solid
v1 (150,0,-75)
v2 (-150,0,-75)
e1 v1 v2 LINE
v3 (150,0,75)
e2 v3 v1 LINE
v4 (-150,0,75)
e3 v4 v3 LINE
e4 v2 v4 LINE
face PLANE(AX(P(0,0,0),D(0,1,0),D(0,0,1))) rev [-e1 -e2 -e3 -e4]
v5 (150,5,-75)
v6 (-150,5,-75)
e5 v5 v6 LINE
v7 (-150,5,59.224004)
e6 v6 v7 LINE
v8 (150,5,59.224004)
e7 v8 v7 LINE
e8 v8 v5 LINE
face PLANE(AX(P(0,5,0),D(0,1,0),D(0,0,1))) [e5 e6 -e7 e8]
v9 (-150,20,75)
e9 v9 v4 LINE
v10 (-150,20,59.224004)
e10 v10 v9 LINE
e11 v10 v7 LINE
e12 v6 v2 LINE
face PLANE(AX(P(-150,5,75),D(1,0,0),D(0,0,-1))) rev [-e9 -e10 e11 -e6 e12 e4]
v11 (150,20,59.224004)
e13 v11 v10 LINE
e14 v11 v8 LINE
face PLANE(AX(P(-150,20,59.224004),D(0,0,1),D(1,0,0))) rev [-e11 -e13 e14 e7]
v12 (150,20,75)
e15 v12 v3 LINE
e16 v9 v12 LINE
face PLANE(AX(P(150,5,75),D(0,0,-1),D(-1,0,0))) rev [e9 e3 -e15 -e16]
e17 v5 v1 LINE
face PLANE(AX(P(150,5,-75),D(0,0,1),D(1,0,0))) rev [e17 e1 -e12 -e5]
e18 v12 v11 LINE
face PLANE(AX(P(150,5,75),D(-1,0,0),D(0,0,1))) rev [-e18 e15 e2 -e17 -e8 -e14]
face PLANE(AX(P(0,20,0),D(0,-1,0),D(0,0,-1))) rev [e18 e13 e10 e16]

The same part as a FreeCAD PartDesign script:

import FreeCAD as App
import Part
import Sketcher
from FreeCAD import Vector
Q = App.Units.Quantity


def add_polygon(sketch, points):
    """Adds a closed chain of lines whose ends are joined by coincident constraints."""
    first, n = sketch.GeometryCount, len(points)
    for a, b in zip(points, points[1:] + points[:1]):
        sketch.addGeometry(Part.LineSegment(App.Vector(*a, 0), App.Vector(*b, 0)), False)
    for i in range(n):
        sketch.addConstraint(Sketcher.Constraint("Coincident", first + i, 2, first + (i + 1) % n, 1))

doc = App.newDocument("Part")
body = doc.addObject("PartDesign::Body", "Body")

# Sketch on XZ plane
sketch1 = body.newObject("Sketcher::SketchObject", "Sketch")
sketch1.AttachmentSupport = (doc.getObject("XZ_Plane"), [""])
sketch1.MapMode = "FlatFace"
add_polygon(sketch1, [(-150, -75), (-150, 75), (150, 75), (150, -75)])  # lines 0-3
sketch1.addConstraint(Sketcher.Constraint("Vertical", 0))
sketch1.addConstraint(Sketcher.Constraint("Horizontal", 1))
sketch1.addConstraint(Sketcher.Constraint("Vertical", 2))
sketch1.addConstraint(Sketcher.Constraint("Horizontal", 3))
sketch1.addConstraint(Sketcher.Constraint("Symmetric", 0, 2, 2, 2, -1, 1))
sketch1.addConstraint(Sketcher.Constraint("DistanceX", 1, 1, 1, 2, Q("300 mm")))
sketch1.addConstraint(Sketcher.Constraint("DistanceY", 0, 1, 0, 2, Q("150 mm")))
pad1 = body.newObject("PartDesign::Pad", "Pad")
pad1.Profile = sketch1
pad1.Length = 5
pad1.Reversed = True

# Sketch on XZ plane
sketch2 = body.newObject("Sketcher::SketchObject", "Sketch001")
sketch2.AttachmentSupport = (doc.getObject("XZ_Plane"), [""])
sketch2.MapMode = "FlatFace"
sketch2.AttachmentOffset = App.Placement(Vector(0, 0, -5), App.Rotation())
add_polygon(sketch2, [(-150, 59), (-150, 75), (150, 75), (150, 59)])  # lines 0-3
sketch2.addConstraint(Sketcher.Constraint("Vertical", 0))
sketch2.addConstraint(Sketcher.Constraint("Horizontal", 1))
sketch2.addConstraint(Sketcher.Constraint("Vertical", 2))
sketch2.addConstraint(Sketcher.Constraint("Horizontal", 3))
sketch2.addConstraint(Sketcher.Constraint("DistanceX", 1, 1, 1, 2, Q("300 mm")))
sketch2.addConstraint(Sketcher.Constraint("DistanceX", 0, 2, -1, 1, Q("150 mm")))
sketch2.addConstraint(Sketcher.Constraint("DistanceY", -1, 1, 0, 2, Q("75 mm")))
sketch2.addConstraint(Sketcher.Constraint("DistanceY", 0, 1, 0, 2, Q("15.775996 mm")))
pad2 = body.newObject("PartDesign::Pad", "Pad001")
pad2.Profile = sketch2
pad2.Length = 15
pad2.Reversed = True

doc.recompute()
